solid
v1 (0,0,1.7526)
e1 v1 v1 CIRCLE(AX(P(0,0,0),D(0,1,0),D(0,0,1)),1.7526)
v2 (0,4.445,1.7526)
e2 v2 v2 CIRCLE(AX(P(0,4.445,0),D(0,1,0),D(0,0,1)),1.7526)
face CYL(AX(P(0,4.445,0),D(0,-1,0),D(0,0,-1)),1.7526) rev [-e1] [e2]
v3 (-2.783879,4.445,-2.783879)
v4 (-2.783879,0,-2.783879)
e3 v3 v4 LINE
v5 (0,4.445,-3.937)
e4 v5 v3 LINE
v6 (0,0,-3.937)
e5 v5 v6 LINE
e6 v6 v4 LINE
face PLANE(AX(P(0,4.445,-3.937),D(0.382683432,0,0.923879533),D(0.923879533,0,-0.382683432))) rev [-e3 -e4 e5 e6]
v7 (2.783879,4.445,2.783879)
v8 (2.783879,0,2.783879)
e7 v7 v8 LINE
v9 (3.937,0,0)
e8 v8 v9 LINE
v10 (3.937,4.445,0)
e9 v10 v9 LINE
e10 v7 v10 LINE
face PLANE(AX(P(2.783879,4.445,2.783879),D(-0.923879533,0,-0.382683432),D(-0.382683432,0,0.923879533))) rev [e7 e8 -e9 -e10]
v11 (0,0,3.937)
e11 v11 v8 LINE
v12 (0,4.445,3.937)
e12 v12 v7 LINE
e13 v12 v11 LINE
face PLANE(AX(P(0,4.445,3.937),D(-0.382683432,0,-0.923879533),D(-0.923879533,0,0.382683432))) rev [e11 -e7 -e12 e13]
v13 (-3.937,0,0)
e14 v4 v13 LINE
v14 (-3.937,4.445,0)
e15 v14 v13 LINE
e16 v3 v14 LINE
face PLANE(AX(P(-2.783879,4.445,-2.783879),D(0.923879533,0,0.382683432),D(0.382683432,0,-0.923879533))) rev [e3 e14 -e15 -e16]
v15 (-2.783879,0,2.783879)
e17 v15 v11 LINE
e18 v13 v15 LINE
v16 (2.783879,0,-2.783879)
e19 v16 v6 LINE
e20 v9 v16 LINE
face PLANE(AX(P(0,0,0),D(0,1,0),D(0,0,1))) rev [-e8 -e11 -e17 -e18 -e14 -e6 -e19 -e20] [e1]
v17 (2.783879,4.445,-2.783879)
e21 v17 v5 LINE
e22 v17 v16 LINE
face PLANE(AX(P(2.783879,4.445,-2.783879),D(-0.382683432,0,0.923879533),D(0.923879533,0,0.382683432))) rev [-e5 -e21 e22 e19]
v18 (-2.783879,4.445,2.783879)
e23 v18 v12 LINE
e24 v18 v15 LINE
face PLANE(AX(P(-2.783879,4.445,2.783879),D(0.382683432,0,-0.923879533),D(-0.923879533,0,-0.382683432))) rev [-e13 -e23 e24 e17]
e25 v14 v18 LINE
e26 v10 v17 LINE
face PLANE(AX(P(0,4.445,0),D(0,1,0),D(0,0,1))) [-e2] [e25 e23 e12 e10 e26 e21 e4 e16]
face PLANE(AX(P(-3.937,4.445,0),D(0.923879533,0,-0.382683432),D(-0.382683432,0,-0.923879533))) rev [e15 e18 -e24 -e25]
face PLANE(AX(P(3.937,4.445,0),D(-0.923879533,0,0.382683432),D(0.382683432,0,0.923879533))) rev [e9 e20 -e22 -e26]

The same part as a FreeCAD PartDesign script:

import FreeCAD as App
import Part
import Sketcher
Q = App.Units.Quantity


def add_polygon(sketch, points):
    """Adds a closed chain of lines whose ends are joined by coincident constraints."""
    first, n = sketch.GeometryCount, len(points)
    for a, b in zip(points, points[1:] + points[:1]):
        sketch.addGeometry(Part.LineSegment(App.Vector(*a, 0), App.Vector(*b, 0)), False)
    for i in range(n):
        sketch.addConstraint(Sketcher.Constraint("Coincident", first + i, 2, first + (i + 1) % n, 1))

doc = App.newDocument("Part")
params = doc.addObject("Spreadsheet::Sheet", "Params")
for row, (alias, value) in enumerate([
    ("sketch1_diameter", "0.138 in"),
    ("pad1_length", "0.175 in"),
], start=1):
    params.set(f"A{row}", alias)
    params.set(f"B{row}", "=" + value)
    params.setAlias(f"B{row}", alias)

body = doc.addObject("PartDesign::Body", "Body")

# Sketch on XZ plane
sketch1 = body.newObject("Sketcher::SketchObject", "Sketch")
sketch1.AttachmentSupport = (doc.getObject("XZ_Plane"), [""])
sketch1.MapMode = "FlatFace"
add_polygon(sketch1, [(0, -3.9), (-2.8, -2.8), (-3.9, 0), (-2.8, 2.8), (0, 3.9), (2.8, 2.8), (3.9, 0), (2.8, -2.8)])  # lines 0-7
sketch1.addGeometry(Part.Circle(App.Vector(0, 0, 0), App.Vector(0, 0, 1), 1.8), False)  # 8
sketch1.addConstraint(Sketcher.Constraint("Coincident", 8, 3, -1, 1))
sketch1.addConstraint(Sketcher.Constraint("Symmetric", 0, 2, 4, 2, -1, 1))
sketch1.addConstraint(Sketcher.Constraint("Symmetric", 1, 2, 5, 2, -1, 1))
sketch1.addConstraint(Sketcher.Constraint("Symmetric", 2, 2, 6, 2, -1, 1))
sketch1.addConstraint(Sketcher.Constraint("Symmetric", 3, 2, 7, 2, -1, 1))
sketch1.addConstraint(Sketcher.Constraint("Symmetric", 2, 2, 4, 2, -2))
sketch1.addConstraint(Sketcher.Constraint("PointOnObject", 1, 2, -1))
sketch1.addConstraint(Sketcher.Constraint("PointOnObject", 3, 2, -2))
sketch1.addConstraint(Sketcher.Constraint("Perpendicular", 0, 2))
sketch1.addConstraint(Sketcher.Constraint("Equal", 0, 1))
sketch1.addConstraint(Sketcher.Constraint("Diameter", 8, Q("0.138 in")))
sketch1.addConstraint(Sketcher.Constraint("Angle", 0, Q("157.5 deg")))
sketch1.addConstraint(Sketcher.Constraint("DistanceX", 1, 2, -1, 1, Q("0.155 in")))
sketch1.setExpression("Constraints[18]", "Params.sketch1_diameter")
pad1 = body.newObject("PartDesign::Pad", "Pad")
pad1.Profile = sketch1
pad1.setExpression("Length", "Params.pad1_length")
pad1.Reversed = True

doc.recompute()
